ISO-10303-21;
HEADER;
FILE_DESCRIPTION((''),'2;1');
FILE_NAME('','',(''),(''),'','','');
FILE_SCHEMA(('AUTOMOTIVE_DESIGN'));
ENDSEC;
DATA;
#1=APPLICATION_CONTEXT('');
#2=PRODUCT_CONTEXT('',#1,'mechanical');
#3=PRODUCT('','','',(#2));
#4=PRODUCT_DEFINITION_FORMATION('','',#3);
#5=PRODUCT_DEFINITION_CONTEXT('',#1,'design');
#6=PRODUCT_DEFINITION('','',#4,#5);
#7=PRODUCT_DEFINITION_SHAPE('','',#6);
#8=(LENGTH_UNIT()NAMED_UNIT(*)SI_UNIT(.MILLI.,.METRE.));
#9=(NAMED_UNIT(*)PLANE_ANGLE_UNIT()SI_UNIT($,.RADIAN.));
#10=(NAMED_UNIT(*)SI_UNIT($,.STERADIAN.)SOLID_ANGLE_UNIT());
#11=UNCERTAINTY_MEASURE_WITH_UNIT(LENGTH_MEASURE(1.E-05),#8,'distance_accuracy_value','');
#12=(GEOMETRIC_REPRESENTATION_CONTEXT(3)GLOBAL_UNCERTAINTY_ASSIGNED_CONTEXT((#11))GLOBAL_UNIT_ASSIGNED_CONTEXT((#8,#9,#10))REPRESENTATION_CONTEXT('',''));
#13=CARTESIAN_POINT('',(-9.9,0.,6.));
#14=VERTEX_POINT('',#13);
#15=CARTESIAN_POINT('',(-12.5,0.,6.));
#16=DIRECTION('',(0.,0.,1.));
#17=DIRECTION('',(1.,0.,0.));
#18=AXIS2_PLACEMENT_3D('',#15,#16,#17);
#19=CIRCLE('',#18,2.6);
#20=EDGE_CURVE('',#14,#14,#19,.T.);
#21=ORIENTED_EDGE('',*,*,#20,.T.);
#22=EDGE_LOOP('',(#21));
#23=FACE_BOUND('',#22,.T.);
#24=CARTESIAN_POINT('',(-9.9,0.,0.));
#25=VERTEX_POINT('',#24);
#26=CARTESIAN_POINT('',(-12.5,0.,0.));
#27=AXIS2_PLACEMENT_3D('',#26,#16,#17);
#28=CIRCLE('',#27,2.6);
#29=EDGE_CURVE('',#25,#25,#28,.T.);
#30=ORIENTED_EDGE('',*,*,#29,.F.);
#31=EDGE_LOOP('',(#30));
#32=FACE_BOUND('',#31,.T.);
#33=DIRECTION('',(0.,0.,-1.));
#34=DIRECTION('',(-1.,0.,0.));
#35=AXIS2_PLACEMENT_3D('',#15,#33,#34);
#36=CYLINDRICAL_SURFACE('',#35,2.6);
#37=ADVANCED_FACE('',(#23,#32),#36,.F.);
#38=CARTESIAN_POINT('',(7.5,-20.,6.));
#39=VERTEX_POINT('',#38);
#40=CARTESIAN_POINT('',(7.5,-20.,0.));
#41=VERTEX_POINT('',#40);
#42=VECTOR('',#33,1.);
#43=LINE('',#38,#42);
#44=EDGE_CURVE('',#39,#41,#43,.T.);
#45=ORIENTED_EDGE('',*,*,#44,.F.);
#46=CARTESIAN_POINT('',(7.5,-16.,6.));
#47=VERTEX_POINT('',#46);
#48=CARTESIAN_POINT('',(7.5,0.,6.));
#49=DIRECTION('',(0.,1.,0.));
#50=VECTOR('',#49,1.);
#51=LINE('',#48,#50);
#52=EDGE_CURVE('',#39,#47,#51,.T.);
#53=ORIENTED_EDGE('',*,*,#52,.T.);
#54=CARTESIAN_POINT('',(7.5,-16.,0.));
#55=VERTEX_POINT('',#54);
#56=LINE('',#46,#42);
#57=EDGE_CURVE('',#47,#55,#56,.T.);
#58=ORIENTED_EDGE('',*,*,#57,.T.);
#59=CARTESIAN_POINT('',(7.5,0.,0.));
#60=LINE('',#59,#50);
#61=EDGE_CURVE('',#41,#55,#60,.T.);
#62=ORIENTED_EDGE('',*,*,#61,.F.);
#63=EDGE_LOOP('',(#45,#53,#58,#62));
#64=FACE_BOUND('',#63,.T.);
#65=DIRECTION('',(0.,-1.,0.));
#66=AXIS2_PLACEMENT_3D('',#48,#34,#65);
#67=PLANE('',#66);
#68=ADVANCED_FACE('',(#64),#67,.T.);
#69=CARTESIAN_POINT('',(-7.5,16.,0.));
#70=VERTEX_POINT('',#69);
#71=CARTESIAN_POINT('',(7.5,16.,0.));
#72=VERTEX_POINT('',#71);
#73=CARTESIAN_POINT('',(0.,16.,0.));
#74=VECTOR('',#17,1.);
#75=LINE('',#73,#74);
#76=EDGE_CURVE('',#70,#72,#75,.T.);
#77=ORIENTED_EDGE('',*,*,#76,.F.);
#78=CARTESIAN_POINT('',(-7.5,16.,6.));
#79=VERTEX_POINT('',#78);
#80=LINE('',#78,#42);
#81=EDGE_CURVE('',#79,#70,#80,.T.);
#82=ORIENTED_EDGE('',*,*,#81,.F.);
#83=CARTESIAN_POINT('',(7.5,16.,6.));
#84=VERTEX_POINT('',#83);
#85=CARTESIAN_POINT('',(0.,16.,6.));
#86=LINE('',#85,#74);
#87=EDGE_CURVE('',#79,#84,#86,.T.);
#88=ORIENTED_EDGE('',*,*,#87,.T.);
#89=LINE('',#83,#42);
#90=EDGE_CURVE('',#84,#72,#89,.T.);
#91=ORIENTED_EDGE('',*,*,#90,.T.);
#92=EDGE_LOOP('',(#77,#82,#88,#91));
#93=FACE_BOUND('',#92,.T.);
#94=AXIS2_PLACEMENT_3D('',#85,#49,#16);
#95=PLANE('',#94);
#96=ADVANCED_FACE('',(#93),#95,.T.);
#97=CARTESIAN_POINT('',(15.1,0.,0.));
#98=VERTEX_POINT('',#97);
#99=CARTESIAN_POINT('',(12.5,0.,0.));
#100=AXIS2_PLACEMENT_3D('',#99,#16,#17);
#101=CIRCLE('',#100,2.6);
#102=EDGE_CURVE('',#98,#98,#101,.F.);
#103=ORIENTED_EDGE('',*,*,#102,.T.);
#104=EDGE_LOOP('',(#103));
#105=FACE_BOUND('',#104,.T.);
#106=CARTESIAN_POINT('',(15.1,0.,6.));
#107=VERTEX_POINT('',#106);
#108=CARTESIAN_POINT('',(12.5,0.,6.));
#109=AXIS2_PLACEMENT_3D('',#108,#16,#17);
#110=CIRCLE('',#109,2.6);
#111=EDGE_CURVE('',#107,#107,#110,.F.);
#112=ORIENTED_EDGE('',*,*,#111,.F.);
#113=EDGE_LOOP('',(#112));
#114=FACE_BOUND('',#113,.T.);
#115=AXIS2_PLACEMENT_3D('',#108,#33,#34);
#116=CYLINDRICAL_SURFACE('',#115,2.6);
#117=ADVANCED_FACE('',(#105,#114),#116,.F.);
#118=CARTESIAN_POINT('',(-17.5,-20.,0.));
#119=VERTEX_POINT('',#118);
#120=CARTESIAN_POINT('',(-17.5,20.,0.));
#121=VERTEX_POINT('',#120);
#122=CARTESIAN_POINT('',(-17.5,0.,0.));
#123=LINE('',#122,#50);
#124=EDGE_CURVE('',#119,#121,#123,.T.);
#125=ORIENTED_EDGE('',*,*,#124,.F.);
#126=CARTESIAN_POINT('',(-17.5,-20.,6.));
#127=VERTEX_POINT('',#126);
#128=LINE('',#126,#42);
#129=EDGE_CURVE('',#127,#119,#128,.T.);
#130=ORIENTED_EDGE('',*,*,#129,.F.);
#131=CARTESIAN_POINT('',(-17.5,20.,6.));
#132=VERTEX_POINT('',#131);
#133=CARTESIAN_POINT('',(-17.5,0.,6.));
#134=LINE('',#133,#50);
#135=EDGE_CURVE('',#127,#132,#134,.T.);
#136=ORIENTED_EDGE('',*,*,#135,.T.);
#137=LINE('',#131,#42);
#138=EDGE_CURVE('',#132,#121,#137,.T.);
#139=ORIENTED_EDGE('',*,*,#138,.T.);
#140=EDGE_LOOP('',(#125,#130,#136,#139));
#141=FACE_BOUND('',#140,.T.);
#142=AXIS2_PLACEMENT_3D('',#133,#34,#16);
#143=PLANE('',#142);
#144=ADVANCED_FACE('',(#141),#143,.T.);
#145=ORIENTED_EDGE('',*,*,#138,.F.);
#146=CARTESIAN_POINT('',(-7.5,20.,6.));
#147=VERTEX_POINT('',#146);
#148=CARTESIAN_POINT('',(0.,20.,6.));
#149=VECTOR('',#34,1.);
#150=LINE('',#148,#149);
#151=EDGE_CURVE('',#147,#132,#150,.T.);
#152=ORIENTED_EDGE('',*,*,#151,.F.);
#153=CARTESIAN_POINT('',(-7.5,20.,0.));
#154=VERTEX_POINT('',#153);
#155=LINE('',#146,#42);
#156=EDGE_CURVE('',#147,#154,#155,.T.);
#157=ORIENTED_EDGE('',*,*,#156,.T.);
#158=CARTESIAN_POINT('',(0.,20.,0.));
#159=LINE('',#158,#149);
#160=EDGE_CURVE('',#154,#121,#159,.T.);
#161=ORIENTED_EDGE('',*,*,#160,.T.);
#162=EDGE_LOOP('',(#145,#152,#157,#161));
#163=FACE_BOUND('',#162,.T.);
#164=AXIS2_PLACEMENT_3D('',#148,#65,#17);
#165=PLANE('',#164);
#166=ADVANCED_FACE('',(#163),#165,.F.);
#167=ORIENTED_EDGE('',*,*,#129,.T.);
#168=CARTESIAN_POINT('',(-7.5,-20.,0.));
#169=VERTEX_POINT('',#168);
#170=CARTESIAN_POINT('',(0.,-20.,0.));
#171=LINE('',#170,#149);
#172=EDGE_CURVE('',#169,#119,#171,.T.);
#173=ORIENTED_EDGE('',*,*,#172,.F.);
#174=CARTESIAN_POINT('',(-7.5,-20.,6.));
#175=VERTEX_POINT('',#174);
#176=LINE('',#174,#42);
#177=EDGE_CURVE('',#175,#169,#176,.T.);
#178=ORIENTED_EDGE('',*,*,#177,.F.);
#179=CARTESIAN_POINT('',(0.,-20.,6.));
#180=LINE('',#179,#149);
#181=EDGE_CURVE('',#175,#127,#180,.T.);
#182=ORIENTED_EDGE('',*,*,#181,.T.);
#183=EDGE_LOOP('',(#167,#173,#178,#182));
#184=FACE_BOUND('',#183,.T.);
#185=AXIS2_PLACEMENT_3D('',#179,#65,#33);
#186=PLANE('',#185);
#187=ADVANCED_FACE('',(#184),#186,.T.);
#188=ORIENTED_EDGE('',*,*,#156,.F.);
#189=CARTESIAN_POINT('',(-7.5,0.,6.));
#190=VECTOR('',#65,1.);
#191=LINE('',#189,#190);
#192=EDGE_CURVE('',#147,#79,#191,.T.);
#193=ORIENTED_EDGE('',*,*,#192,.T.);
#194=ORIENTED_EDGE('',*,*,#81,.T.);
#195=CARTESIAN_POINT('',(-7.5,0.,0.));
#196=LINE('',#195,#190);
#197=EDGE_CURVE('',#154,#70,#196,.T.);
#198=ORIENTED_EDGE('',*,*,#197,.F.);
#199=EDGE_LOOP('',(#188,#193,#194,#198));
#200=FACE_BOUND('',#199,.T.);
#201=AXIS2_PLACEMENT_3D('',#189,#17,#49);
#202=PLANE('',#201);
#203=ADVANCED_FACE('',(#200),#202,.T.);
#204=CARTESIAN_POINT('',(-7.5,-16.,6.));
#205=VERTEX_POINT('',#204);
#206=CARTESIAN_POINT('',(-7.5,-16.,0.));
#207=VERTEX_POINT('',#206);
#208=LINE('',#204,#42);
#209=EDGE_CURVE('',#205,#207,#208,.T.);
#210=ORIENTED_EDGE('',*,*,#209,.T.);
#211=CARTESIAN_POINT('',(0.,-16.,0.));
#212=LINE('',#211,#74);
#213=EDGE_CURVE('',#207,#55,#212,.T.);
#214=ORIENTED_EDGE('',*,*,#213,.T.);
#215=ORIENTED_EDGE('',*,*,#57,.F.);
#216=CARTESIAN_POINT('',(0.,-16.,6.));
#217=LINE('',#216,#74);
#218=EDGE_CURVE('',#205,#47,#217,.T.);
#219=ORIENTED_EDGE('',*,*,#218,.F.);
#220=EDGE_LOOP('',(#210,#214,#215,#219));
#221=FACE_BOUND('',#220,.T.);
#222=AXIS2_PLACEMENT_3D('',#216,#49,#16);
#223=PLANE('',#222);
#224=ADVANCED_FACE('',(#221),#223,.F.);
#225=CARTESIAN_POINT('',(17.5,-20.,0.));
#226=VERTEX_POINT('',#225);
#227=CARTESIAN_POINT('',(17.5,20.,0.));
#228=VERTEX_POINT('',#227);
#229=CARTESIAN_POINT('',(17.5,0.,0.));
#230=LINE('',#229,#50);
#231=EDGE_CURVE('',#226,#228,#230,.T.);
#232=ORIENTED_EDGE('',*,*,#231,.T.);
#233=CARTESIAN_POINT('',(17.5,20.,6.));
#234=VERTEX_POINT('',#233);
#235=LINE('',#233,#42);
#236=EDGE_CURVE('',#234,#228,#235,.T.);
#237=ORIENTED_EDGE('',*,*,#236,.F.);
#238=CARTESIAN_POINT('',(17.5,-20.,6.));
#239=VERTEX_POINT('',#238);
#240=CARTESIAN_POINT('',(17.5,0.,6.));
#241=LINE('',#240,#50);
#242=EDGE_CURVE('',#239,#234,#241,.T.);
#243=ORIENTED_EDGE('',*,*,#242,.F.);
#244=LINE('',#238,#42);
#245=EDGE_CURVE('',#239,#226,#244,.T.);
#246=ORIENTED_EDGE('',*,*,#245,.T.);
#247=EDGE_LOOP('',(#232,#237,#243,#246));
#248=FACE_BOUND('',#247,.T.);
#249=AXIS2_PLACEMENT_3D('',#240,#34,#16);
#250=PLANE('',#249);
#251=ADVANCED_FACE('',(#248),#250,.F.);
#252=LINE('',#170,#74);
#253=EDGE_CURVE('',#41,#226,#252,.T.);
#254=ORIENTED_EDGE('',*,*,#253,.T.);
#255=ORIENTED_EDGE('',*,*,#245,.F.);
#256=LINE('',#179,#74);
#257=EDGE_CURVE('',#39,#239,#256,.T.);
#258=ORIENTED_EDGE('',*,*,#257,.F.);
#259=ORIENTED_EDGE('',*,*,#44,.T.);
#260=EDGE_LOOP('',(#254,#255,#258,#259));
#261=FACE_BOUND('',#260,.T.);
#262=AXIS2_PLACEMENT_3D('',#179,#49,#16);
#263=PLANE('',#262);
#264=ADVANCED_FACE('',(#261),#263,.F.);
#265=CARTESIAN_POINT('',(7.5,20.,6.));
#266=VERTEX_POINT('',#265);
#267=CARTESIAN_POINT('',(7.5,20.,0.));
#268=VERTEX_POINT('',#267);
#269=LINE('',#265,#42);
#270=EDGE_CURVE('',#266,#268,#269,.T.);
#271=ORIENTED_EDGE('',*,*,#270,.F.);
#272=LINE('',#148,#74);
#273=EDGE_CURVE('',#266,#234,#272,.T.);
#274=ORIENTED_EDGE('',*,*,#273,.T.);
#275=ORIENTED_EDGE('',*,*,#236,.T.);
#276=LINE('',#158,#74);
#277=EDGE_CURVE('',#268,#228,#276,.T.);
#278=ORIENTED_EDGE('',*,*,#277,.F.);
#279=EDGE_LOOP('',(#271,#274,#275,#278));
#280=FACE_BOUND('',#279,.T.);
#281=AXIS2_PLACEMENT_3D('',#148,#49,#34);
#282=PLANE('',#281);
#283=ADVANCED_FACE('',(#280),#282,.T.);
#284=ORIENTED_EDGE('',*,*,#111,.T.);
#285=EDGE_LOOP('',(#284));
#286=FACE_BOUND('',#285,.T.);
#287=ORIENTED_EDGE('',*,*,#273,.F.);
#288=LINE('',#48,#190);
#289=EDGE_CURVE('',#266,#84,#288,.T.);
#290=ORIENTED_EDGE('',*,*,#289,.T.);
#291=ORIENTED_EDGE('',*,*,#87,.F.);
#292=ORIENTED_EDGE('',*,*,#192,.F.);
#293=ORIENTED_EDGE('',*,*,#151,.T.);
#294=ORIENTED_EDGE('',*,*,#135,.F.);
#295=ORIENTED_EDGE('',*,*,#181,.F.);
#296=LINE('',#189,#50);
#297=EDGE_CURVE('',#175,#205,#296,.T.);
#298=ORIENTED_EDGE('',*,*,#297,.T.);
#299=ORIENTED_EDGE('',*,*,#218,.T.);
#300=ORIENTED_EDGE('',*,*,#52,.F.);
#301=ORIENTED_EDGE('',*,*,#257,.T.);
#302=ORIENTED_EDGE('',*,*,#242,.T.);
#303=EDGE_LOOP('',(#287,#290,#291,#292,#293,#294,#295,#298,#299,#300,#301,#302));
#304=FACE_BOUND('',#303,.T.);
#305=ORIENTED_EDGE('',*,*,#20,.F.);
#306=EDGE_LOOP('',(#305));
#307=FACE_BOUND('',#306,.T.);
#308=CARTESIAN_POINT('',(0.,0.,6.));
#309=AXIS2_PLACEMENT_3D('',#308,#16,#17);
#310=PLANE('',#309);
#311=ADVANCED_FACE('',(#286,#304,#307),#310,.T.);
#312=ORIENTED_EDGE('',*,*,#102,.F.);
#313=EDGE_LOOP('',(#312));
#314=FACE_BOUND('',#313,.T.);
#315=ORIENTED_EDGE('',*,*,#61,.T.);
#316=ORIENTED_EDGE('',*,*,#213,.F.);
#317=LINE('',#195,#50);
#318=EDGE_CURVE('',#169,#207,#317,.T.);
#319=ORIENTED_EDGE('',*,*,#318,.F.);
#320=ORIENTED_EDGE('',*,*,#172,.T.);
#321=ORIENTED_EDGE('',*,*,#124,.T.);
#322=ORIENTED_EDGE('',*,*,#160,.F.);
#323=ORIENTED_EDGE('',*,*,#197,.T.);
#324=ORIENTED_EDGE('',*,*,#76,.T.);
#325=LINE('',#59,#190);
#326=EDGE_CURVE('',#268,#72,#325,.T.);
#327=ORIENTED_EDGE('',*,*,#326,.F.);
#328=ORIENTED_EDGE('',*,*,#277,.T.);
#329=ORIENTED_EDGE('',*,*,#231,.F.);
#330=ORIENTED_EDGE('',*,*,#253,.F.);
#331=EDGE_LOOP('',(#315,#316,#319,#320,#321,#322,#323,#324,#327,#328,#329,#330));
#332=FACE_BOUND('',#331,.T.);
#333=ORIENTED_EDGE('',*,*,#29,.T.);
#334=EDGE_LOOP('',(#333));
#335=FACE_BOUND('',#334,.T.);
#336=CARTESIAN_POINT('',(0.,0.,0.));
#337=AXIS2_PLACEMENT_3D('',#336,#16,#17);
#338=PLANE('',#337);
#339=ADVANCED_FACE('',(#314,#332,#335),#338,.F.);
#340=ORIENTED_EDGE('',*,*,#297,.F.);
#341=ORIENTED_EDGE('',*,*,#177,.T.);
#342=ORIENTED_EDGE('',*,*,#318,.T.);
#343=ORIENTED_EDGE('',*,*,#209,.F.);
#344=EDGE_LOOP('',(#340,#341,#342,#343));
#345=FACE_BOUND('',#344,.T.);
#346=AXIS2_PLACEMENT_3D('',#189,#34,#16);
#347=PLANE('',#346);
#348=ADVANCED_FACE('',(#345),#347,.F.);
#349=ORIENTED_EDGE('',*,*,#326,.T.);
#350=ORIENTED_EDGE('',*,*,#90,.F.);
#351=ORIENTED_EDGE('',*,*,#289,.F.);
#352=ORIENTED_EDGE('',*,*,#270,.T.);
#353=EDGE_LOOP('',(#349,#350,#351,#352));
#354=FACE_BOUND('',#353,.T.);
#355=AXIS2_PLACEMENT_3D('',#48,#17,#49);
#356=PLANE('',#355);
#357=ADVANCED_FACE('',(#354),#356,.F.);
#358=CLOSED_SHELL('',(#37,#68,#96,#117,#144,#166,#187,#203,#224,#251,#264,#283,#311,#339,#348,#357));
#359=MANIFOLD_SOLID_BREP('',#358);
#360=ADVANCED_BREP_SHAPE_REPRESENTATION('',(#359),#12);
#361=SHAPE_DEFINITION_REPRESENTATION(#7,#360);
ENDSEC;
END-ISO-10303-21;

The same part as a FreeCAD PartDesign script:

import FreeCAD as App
import Part
import Sketcher
Q = App.Units.Quantity


def add_polygon(sketch, points):
    """Adds a closed chain of lines whose ends are joined by coincident constraints."""
    first, n = sketch.GeometryCount, len(points)
    for a, b in zip(points, points[1:] + points[:1]):
        sketch.addGeometry(Part.LineSegment(App.Vector(*a, 0), App.Vector(*b, 0)), False)
    for i in range(n):
        sketch.addConstraint(Sketcher.Constraint("Coincident", first + i, 2, first + (i + 1) % n, 1))

doc = App.newDocument("Part")
params = doc.addObject("Spreadsheet::Sheet", "Params")
for row, (alias, value) in enumerate([
    ("sketch1_diameter", "5.2 mm"),
    ("sketch1_width", "10 mm"),
    ("sketch1_width2", "15 mm"),
    ("sketch1_height", "4 mm"),
    ("sketch1_height2", "40 mm"),
    ("pad1_length", "6 mm"),
], start=1):
    params.set(f"A{row}", alias)
    params.set(f"B{row}", "=" + value)
    params.setAlias(f"B{row}", alias)

body = doc.addObject("PartDesign::Body", "Body")

# Sketch on XY plane
sketch1 = body.newObject("Sketcher::SketchObject", "Sketch")
sketch1.AttachmentSupport = (doc.getObject("XY_Plane"), [""])
sketch1.MapMode = "FlatFace"
add_polygon(sketch1, [(-17.5, -20), (-7.5, -20), (-7.5, -16), (7.5, -16), (7.5, -20), (17.5, -20), (17.5, 20), (7.5, 20), (7.5, 16), (-7.5, 16), (-7.5, 20), (-17.5, 20)])  # lines 0-11
sketch1.addGeometry(Part.Circle(App.Vector(-12.5, 0, 0), App.Vector(0, 0, 1), 2.6), False)  # 12
sketch1.addGeometry(Part.Circle(App.Vector(12.5, 0, 0), App.Vector(0, 0, 1), 2.6), False)  # 13
sketch1.addConstraint(Sketcher.Constraint("Horizontal", 0))
sketch1.addConstraint(Sketcher.Constraint("Vertical", 1))
sketch1.addConstraint(Sketcher.Constraint("Horizontal", 2))
sketch1.addConstraint(Sketcher.Constraint("Vertical", 3))
sketch1.addConstraint(Sketcher.Constraint("Horizontal", 4))
sketch1.addConstraint(Sketcher.Constraint("Vertical", 5))
sketch1.addConstraint(Sketcher.Constraint("Horizontal", 6))
sketch1.addConstraint(Sketcher.Constraint("Vertical", 7))
sketch1.addConstraint(Sketcher.Constraint("Horizontal", 8))
sketch1.addConstraint(Sketcher.Constraint("Vertical", 9))
sketch1.addConstraint(Sketcher.Constraint("Horizontal", 10))
sketch1.addConstraint(Sketcher.Constraint("Vertical", 11))
sketch1.addConstraint(Sketcher.Constraint("Equal", 12, 13))
sketch1.addConstraint(Sketcher.Constraint("Symmetric", 12, 3, 13, 3, -1, 1))
sketch1.addConstraint(Sketcher.Constraint("Symmetric", 0, 2, 6, 2, -1, 1))
sketch1.addConstraint(Sketcher.Constraint("Symmetric", 2, 2, 8, 2, -1, 1))
sketch1.addConstraint(Sketcher.Constraint("Symmetric", 4, 2, 10, 2, -1, 1))
sketch1.addConstraint(Sketcher.Constraint("Symmetric", 0, 2, 3, 2, -2))
sketch1.addConstraint(Sketcher.Constraint("PointOnObject", 12, 3, -1))
sketch1.addConstraint(Sketcher.Constraint("Diameter", 12, Q("5.2 mm")))
sketch1.addConstraint(Sketcher.Constraint("DistanceX", 0, 1, 0, 2, Q("10 mm")))
sketch1.addConstraint(Sketcher.Constraint("DistanceX", 2, 1, 2, 2, Q("15 mm")))
sketch1.addConstraint(Sketcher.Constraint("DistanceY", 1, 1, 1, 2, Q("4 mm")))
sketch1.addConstraint(Sketcher.Constraint("DistanceY", 5, 1, 5, 2, Q("40 mm")))
sketch1.addConstraint(Sketcher.Constraint("DistanceX", 12, 3, 13, 3, Q("25 mm")))
sketch1.setExpression("Constraints[31]", "Params.sketch1_diameter")
sketch1.setExpression("Constraints[32]", "Params.sketch1_width")
sketch1.setExpression("Constraints[33]", "Params.sketch1_width2")
sketch1.setExpression("Constraints[34]", "Params.sketch1_height")
sketch1.setExpression("Constraints[35]", "Params.sketch1_height2")
pad1 = body.newObject("PartDesign::Pad", "Pad")
pad1.Profile = sketch1
pad1.setExpression("Length", "Params.pad1_length")

doc.recompute()
